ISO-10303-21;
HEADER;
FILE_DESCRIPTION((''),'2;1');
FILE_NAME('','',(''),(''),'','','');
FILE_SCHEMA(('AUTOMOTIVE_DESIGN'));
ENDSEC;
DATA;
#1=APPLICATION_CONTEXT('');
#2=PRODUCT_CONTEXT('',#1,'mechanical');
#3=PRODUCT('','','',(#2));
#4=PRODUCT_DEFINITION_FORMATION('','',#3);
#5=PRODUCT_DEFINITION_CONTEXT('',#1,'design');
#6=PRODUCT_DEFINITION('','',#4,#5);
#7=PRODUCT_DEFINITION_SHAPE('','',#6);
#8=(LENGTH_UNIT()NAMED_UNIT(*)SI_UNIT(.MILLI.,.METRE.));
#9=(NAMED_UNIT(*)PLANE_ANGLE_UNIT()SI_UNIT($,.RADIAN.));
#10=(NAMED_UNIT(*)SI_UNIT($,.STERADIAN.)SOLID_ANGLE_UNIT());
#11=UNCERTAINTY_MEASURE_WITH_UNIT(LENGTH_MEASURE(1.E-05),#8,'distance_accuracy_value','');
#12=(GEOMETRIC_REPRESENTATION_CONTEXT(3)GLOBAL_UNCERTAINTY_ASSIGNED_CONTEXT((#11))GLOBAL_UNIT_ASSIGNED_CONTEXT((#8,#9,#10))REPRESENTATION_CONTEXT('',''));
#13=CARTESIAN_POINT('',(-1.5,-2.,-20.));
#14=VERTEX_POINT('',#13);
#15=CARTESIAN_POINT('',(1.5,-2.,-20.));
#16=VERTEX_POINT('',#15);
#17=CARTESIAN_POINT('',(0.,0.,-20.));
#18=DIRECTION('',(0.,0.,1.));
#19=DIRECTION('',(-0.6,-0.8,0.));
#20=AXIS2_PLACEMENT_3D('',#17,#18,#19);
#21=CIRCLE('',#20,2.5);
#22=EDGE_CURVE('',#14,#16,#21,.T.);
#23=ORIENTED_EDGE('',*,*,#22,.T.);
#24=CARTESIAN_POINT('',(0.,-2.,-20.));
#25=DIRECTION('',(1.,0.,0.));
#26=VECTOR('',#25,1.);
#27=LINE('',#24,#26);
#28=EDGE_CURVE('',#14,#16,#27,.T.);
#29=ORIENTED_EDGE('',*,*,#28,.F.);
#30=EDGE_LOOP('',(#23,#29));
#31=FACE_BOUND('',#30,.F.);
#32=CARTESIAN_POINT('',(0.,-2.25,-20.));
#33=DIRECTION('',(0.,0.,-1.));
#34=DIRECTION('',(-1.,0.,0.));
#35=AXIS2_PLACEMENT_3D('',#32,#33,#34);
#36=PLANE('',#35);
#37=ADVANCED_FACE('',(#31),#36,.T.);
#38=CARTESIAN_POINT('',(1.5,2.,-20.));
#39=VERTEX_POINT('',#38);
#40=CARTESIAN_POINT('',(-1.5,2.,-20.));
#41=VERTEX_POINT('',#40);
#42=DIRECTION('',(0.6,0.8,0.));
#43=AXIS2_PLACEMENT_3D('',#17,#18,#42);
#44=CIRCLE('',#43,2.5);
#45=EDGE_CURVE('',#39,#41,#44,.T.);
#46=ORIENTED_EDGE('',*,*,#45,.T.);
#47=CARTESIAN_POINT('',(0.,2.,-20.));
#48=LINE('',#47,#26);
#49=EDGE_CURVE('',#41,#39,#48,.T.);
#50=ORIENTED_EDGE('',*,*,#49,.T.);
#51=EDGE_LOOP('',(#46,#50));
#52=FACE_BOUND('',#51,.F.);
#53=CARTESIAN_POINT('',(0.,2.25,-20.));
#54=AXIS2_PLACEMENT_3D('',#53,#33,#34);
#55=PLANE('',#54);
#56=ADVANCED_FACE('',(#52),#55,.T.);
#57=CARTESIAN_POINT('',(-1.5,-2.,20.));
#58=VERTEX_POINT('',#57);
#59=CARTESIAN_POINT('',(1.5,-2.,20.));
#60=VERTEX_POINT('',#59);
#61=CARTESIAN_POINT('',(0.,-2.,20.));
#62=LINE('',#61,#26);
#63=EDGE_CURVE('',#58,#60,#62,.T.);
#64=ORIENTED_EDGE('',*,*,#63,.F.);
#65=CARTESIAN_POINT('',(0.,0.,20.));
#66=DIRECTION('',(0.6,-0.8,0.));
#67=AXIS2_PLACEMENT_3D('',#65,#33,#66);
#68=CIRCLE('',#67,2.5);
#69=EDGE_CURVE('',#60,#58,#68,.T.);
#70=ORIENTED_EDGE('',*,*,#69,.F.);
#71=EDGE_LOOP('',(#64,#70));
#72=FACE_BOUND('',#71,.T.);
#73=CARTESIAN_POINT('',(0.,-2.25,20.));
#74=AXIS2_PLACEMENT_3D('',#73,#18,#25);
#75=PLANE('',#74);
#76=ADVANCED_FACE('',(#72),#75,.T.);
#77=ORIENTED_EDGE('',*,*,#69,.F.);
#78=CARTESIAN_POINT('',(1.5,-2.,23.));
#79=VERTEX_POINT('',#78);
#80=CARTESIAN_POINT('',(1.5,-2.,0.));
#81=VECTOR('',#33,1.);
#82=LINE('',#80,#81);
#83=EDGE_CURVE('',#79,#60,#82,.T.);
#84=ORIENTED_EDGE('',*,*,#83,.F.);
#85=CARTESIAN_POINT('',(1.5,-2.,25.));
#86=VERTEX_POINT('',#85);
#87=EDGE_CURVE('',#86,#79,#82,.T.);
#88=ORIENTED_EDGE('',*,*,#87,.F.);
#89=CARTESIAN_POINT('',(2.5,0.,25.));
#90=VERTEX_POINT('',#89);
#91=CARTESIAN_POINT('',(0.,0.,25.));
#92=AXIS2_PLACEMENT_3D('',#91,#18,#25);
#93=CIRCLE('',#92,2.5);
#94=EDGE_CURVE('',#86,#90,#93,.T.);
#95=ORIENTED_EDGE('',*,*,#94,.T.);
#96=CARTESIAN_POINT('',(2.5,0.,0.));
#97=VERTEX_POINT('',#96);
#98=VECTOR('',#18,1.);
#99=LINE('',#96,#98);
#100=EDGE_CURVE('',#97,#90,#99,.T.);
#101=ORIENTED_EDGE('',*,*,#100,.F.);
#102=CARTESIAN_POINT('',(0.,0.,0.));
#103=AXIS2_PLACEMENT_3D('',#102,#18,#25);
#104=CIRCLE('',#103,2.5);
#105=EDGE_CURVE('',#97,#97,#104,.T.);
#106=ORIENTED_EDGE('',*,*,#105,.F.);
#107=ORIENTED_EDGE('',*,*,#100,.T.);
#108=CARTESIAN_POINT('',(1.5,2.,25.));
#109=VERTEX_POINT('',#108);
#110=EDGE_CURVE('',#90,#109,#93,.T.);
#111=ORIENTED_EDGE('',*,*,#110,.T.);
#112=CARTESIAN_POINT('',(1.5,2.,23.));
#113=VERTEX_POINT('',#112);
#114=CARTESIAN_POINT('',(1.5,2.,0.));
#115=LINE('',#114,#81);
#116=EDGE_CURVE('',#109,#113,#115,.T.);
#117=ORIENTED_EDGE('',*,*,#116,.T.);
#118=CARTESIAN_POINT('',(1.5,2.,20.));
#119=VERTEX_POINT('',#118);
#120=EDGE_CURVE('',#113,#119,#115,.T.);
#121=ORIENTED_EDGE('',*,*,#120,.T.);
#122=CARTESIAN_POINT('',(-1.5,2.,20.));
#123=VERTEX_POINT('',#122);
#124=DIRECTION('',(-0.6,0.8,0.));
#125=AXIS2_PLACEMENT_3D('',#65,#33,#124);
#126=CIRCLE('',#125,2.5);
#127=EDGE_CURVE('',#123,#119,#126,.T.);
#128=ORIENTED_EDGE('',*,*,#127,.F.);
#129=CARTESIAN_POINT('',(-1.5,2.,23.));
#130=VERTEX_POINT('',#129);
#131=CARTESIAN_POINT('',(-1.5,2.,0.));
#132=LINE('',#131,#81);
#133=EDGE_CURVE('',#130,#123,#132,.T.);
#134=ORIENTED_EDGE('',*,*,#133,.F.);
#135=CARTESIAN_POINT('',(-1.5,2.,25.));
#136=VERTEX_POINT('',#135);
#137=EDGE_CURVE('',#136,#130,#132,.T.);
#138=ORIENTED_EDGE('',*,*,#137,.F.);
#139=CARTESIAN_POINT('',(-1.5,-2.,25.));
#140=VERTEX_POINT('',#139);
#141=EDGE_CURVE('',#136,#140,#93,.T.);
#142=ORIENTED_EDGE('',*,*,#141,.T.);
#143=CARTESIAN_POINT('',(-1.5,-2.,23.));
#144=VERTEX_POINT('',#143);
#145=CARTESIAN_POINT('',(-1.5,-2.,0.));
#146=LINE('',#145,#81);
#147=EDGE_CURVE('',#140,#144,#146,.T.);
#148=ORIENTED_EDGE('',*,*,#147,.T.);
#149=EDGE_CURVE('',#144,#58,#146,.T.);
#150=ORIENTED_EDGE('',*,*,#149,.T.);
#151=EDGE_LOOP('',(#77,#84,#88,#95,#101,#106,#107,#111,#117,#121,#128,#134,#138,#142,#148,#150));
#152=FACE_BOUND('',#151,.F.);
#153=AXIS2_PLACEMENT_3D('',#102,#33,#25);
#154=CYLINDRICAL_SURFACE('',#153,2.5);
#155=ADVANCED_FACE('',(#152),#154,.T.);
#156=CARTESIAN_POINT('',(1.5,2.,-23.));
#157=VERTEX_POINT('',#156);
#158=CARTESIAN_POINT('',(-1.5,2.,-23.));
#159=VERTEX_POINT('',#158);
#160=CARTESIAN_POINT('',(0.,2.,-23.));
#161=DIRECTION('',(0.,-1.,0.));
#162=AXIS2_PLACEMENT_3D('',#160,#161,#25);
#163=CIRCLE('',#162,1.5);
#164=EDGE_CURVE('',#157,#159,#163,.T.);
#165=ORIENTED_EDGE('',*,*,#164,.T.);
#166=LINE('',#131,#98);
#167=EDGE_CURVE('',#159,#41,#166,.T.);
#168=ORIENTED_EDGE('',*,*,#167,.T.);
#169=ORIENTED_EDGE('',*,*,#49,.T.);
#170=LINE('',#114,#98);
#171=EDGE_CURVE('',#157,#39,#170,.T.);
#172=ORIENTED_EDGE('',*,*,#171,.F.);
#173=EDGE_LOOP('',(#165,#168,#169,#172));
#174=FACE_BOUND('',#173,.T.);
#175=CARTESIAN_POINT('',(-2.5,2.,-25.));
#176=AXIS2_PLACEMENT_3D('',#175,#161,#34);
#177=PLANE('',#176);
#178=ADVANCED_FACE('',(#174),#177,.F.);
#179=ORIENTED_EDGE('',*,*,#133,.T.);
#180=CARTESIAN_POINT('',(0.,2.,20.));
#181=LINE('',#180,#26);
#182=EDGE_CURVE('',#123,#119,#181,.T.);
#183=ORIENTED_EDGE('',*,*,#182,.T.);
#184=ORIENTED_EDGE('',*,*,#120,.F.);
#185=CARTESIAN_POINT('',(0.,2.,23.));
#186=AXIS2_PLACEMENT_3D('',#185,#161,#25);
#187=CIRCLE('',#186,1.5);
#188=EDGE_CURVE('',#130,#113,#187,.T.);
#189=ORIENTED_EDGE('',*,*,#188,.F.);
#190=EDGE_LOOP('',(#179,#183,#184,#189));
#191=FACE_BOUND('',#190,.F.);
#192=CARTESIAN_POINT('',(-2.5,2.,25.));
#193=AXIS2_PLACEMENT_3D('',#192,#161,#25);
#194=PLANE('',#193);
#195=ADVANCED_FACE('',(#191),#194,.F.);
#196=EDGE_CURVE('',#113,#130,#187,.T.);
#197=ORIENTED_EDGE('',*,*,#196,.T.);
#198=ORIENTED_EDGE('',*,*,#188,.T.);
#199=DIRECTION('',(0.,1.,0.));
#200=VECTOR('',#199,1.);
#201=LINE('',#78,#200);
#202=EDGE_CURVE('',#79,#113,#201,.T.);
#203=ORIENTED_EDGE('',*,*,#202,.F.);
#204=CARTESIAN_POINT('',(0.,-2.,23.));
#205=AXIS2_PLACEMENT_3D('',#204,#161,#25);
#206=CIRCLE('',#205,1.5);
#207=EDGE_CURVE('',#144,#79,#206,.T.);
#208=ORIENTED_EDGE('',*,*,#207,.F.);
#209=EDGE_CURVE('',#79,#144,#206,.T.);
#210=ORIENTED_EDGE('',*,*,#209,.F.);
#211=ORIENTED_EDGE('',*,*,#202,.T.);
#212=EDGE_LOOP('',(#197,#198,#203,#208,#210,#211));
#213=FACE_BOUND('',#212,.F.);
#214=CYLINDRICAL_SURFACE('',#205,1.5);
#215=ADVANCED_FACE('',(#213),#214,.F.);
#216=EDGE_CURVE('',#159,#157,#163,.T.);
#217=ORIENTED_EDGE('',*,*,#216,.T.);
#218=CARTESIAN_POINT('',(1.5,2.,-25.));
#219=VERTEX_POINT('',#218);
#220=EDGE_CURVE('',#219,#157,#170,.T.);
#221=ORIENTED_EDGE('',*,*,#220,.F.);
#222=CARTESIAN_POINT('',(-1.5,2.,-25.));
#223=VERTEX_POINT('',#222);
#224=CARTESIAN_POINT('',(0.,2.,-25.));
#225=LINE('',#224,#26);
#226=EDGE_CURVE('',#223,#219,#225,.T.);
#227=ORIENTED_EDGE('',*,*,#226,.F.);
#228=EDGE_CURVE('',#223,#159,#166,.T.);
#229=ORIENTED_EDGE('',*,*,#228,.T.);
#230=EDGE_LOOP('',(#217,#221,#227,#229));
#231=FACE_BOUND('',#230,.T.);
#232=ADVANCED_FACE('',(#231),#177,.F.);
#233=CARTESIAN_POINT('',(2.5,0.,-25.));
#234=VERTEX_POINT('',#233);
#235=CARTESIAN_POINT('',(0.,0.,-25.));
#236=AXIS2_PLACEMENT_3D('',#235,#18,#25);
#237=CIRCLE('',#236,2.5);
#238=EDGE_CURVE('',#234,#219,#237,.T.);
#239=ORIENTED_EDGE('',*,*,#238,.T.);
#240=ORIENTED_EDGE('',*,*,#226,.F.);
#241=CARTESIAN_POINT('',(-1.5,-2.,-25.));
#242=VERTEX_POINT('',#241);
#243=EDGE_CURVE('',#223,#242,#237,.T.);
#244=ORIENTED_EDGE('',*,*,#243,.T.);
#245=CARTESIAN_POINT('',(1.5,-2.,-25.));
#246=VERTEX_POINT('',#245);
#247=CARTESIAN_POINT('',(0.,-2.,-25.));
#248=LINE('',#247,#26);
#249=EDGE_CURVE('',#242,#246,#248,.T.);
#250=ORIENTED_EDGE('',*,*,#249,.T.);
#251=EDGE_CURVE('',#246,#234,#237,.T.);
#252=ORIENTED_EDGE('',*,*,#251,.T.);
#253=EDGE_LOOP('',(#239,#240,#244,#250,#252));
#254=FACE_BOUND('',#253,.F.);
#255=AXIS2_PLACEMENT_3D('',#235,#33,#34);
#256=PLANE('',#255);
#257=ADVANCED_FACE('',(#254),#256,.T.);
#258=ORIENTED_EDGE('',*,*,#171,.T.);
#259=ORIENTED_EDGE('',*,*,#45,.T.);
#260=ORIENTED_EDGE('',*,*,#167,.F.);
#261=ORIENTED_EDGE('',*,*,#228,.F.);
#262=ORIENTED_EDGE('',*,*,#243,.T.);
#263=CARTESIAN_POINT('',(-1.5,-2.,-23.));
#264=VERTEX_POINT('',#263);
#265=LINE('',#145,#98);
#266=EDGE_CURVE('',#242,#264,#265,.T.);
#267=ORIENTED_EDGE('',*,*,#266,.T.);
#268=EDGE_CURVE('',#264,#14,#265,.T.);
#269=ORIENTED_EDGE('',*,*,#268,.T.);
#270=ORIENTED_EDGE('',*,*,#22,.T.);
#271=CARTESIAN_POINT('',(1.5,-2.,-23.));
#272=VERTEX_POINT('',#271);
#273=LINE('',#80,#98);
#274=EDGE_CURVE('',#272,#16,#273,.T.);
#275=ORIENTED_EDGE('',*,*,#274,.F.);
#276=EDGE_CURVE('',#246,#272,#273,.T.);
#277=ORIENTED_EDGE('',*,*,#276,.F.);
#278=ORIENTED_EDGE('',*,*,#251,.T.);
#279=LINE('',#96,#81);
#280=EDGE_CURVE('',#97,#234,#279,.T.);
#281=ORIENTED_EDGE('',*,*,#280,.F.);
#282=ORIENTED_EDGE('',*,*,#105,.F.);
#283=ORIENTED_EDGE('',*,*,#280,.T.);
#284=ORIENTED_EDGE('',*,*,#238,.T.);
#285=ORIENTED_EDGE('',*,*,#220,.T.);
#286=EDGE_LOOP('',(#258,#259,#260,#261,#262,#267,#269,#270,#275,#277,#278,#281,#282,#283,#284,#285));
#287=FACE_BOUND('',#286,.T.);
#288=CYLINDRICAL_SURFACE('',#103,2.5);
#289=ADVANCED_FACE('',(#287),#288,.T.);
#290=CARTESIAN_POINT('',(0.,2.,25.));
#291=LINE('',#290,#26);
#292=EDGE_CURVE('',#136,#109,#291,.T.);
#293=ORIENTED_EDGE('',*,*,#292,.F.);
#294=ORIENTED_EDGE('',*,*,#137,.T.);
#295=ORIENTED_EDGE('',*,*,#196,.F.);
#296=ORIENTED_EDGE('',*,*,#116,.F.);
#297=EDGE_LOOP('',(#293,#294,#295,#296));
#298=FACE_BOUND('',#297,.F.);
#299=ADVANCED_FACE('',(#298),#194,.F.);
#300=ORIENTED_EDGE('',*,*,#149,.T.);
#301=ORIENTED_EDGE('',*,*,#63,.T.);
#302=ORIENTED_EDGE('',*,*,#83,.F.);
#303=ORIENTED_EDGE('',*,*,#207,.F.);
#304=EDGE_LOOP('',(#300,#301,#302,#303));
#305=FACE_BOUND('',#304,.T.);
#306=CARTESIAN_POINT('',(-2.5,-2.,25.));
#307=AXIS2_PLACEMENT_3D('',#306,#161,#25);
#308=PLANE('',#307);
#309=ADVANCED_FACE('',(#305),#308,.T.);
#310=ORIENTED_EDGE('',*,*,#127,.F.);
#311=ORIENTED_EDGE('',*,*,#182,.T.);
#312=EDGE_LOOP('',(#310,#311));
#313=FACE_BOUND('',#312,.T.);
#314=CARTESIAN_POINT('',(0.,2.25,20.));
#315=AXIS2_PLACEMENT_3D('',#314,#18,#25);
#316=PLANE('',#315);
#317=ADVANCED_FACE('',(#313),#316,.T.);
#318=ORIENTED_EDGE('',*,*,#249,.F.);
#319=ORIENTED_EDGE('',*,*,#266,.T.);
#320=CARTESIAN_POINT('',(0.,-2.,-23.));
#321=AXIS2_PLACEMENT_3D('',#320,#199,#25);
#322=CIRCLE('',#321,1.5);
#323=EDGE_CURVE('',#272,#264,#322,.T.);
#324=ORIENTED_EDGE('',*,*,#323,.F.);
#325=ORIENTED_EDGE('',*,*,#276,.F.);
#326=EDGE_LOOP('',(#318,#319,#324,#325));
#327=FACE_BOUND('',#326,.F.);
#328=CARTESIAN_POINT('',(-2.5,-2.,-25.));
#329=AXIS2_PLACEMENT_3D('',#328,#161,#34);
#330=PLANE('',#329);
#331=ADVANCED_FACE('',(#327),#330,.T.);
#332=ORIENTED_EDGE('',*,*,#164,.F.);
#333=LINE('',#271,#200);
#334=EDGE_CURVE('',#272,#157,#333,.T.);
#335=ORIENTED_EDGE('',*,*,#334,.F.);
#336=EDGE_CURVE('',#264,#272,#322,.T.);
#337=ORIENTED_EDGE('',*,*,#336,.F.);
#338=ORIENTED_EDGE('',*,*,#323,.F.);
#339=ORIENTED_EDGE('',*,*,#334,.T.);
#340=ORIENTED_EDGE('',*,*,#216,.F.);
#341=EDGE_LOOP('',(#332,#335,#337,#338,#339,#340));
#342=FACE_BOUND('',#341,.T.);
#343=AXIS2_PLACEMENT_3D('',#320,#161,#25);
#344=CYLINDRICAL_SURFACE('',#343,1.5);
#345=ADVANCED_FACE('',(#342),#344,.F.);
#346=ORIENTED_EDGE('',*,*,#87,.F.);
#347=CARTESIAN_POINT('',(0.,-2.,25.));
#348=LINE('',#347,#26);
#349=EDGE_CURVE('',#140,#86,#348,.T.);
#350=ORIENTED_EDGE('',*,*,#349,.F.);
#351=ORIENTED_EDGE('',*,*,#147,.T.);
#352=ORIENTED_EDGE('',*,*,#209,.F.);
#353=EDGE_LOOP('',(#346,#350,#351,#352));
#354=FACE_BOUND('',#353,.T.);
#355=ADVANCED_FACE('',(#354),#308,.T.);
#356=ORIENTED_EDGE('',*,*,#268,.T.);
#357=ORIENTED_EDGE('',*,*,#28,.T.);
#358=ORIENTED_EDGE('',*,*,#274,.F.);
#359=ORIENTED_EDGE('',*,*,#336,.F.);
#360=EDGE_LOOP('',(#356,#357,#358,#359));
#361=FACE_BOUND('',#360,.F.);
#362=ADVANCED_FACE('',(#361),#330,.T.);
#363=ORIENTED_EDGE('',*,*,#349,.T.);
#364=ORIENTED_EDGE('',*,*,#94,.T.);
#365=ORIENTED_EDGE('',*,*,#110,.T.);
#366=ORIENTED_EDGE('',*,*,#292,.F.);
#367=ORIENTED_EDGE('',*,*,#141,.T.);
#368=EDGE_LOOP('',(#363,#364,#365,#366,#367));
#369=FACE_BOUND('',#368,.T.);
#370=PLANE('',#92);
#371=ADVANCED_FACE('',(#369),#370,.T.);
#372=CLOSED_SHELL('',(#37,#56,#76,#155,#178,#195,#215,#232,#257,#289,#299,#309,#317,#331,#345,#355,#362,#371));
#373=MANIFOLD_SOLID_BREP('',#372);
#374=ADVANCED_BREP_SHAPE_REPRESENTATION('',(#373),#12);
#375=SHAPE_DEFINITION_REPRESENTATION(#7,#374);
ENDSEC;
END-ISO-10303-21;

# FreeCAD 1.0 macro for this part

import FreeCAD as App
import Part
import Sketcher
from FreeCAD import Vector

doc = App.newDocument("Part")
body = doc.addObject("PartDesign::Body", "Body")

# Sketch on XY plane
sketch1 = body.newObject("Sketcher::SketchObject", "Sketch")
sketch1.AttachmentSupport = (doc.getObject("XY_Plane"), [""])
sketch1.MapMode = "FlatFace"
sketch1.addGeometry(Part.Circle(Vector(0, 0, 0), Vector(0, 0, 1), 2.5), False)
sketch1.addConstraint([
    Sketcher.Constraint("Coincident", 0, 3, -1, 1),
    Sketcher.Constraint("Diameter", 0, 5.0),
])
pad1 = body.newObject("PartDesign::Pad", "Pad")
pad1.Profile = sketch1
pad1.Length = 25

# Sketch on XY plane
sketch2 = body.newObject("Sketcher::SketchObject", "Sketch001")
sketch2.AttachmentSupport = (doc.getObject("XY_Plane"), [""])
sketch2.MapMode = "FlatFace"
sketch2.AttachmentOffset = App.Placement(Vector(0, 0, 25), App.Rotation())
sketch2.addGeometry([
    Part.LineSegment(Vector(-2.5, 2.5, 0), Vector(-2.5, 2, 0)),  # 0
    Part.LineSegment(Vector(-2.5, 2, 0), Vector(2.5, 2, 0)),  # 1
    Part.LineSegment(Vector(2.5, 2, 0), Vector(2.5, 2.5, 0)),  # 2
    Part.LineSegment(Vector(2.5, 2.5, 0), Vector(-2.5, 2.5, 0)),  # 3
    Part.LineSegment(Vector(-2.5, -2, 0), Vector(-2.5, -2.5, 0)),  # 4
    Part.LineSegment(Vector(-2.5, -2.5, 0), Vector(2.5, -2.5, 0)),  # 5
    Part.LineSegment(Vector(2.5, -2.5, 0), Vector(2.5, -2, 0)),  # 6
    Part.LineSegment(Vector(2.5, -2, 0), Vector(-2.5, -2, 0)),  # 7
], False)
sketch2.addConstraint([
    Sketcher.Constraint("Coincident", 0, 2, 1, 1),
    Sketcher.Constraint("Coincident", 1, 2, 2, 1),
    Sketcher.Constraint("Coincident", 2, 2, 3, 1),
    Sketcher.Constraint("Coincident", 3, 2, 0, 1),
    Sketcher.Constraint("Coincident", 4, 2, 5, 1),
    Sketcher.Constraint("Coincident", 5, 2, 6, 1),
    Sketcher.Constraint("Coincident", 6, 2, 7, 1),
    Sketcher.Constraint("Coincident", 7, 2, 4, 1),
    Sketcher.Constraint("Vertical", 0),
    Sketcher.Constraint("Horizontal", 1),
    Sketcher.Constraint("Vertical", 2),
    Sketcher.Constraint("Horizontal", 3),
    Sketcher.Constraint("Vertical", 4),
    Sketcher.Constraint("Horizontal", 5),
    Sketcher.Constraint("Vertical", 6),
    Sketcher.Constraint("Horizontal", 7),
    Sketcher.Constraint("Symmetric", 2, 2, 4, 2, -1, 1),
    Sketcher.Constraint("Symmetric", 0, 2, 6, 2, -1, 1),
    Sketcher.Constraint("Vertical", 3, 2, 4, 2),
    Sketcher.Constraint("DistanceX", 1, 1, 1, 2, 5.0),
    Sketcher.Constraint("DistanceY", 0, 2, 0, 1, 0.5),
    Sketcher.Constraint("DistanceY", -1, 1, 0, 2, 2.0),
])
pocket1 = body.newObject("PartDesign::Pocket", "Pocket")
pocket1.Profile = sketch2
pocket1.Length = 5

# Sketch on XZ plane
sketch3 = body.newObject("Sketcher::SketchObject", "Sketch002")
sketch3.AttachmentSupport = (doc.getObject("XZ_Plane"), [""])
sketch3.MapMode = "FlatFace"
sketch3.AttachmentOffset = App.Placement(Vector(0, 0, 2), App.Rotation())
sketch3.addGeometry(Part.Circle(Vector(0, 23, 0), Vector(0, 0, 1), 1.5), False)
sketch3.addConstraint([
    Sketcher.Constraint("PointOnObject", 0, 3, -2),
    Sketcher.Constraint("Diameter", 0, 3.0),
    Sketcher.Constraint("DistanceY", -1, 1, 0, 3, 23.0),
])
pocket2 = body.newObject("PartDesign::Pocket", "Pocket001")
pocket2.Profile = sketch3
pocket2.Type = "ThroughAll"
doc.recompute()

mirrored = body.newObject("PartDesign::Mirrored", "Mirrored")
mirrored.Originals = [pad1]
mirrored.MirrorPlane = (doc.getObject("XY_Plane"), [""])
body.Tip = mirrored
doc.recompute()

mirrored2 = body.newObject("PartDesign::Mirrored", "Mirrored001")
mirrored2.Originals = [pocket1]
mirrored2.MirrorPlane = (doc.getObject("XY_Plane"), [""])
body.Tip = mirrored2
doc.recompute()

mirrored3 = body.newObject("PartDesign::Mirrored", "Mirrored002")
mirrored3.Originals = [pocket2]
mirrored3.MirrorPlane = (doc.getObject("XY_Plane"), [""])
body.Tip = mirrored3

doc.recompute()
